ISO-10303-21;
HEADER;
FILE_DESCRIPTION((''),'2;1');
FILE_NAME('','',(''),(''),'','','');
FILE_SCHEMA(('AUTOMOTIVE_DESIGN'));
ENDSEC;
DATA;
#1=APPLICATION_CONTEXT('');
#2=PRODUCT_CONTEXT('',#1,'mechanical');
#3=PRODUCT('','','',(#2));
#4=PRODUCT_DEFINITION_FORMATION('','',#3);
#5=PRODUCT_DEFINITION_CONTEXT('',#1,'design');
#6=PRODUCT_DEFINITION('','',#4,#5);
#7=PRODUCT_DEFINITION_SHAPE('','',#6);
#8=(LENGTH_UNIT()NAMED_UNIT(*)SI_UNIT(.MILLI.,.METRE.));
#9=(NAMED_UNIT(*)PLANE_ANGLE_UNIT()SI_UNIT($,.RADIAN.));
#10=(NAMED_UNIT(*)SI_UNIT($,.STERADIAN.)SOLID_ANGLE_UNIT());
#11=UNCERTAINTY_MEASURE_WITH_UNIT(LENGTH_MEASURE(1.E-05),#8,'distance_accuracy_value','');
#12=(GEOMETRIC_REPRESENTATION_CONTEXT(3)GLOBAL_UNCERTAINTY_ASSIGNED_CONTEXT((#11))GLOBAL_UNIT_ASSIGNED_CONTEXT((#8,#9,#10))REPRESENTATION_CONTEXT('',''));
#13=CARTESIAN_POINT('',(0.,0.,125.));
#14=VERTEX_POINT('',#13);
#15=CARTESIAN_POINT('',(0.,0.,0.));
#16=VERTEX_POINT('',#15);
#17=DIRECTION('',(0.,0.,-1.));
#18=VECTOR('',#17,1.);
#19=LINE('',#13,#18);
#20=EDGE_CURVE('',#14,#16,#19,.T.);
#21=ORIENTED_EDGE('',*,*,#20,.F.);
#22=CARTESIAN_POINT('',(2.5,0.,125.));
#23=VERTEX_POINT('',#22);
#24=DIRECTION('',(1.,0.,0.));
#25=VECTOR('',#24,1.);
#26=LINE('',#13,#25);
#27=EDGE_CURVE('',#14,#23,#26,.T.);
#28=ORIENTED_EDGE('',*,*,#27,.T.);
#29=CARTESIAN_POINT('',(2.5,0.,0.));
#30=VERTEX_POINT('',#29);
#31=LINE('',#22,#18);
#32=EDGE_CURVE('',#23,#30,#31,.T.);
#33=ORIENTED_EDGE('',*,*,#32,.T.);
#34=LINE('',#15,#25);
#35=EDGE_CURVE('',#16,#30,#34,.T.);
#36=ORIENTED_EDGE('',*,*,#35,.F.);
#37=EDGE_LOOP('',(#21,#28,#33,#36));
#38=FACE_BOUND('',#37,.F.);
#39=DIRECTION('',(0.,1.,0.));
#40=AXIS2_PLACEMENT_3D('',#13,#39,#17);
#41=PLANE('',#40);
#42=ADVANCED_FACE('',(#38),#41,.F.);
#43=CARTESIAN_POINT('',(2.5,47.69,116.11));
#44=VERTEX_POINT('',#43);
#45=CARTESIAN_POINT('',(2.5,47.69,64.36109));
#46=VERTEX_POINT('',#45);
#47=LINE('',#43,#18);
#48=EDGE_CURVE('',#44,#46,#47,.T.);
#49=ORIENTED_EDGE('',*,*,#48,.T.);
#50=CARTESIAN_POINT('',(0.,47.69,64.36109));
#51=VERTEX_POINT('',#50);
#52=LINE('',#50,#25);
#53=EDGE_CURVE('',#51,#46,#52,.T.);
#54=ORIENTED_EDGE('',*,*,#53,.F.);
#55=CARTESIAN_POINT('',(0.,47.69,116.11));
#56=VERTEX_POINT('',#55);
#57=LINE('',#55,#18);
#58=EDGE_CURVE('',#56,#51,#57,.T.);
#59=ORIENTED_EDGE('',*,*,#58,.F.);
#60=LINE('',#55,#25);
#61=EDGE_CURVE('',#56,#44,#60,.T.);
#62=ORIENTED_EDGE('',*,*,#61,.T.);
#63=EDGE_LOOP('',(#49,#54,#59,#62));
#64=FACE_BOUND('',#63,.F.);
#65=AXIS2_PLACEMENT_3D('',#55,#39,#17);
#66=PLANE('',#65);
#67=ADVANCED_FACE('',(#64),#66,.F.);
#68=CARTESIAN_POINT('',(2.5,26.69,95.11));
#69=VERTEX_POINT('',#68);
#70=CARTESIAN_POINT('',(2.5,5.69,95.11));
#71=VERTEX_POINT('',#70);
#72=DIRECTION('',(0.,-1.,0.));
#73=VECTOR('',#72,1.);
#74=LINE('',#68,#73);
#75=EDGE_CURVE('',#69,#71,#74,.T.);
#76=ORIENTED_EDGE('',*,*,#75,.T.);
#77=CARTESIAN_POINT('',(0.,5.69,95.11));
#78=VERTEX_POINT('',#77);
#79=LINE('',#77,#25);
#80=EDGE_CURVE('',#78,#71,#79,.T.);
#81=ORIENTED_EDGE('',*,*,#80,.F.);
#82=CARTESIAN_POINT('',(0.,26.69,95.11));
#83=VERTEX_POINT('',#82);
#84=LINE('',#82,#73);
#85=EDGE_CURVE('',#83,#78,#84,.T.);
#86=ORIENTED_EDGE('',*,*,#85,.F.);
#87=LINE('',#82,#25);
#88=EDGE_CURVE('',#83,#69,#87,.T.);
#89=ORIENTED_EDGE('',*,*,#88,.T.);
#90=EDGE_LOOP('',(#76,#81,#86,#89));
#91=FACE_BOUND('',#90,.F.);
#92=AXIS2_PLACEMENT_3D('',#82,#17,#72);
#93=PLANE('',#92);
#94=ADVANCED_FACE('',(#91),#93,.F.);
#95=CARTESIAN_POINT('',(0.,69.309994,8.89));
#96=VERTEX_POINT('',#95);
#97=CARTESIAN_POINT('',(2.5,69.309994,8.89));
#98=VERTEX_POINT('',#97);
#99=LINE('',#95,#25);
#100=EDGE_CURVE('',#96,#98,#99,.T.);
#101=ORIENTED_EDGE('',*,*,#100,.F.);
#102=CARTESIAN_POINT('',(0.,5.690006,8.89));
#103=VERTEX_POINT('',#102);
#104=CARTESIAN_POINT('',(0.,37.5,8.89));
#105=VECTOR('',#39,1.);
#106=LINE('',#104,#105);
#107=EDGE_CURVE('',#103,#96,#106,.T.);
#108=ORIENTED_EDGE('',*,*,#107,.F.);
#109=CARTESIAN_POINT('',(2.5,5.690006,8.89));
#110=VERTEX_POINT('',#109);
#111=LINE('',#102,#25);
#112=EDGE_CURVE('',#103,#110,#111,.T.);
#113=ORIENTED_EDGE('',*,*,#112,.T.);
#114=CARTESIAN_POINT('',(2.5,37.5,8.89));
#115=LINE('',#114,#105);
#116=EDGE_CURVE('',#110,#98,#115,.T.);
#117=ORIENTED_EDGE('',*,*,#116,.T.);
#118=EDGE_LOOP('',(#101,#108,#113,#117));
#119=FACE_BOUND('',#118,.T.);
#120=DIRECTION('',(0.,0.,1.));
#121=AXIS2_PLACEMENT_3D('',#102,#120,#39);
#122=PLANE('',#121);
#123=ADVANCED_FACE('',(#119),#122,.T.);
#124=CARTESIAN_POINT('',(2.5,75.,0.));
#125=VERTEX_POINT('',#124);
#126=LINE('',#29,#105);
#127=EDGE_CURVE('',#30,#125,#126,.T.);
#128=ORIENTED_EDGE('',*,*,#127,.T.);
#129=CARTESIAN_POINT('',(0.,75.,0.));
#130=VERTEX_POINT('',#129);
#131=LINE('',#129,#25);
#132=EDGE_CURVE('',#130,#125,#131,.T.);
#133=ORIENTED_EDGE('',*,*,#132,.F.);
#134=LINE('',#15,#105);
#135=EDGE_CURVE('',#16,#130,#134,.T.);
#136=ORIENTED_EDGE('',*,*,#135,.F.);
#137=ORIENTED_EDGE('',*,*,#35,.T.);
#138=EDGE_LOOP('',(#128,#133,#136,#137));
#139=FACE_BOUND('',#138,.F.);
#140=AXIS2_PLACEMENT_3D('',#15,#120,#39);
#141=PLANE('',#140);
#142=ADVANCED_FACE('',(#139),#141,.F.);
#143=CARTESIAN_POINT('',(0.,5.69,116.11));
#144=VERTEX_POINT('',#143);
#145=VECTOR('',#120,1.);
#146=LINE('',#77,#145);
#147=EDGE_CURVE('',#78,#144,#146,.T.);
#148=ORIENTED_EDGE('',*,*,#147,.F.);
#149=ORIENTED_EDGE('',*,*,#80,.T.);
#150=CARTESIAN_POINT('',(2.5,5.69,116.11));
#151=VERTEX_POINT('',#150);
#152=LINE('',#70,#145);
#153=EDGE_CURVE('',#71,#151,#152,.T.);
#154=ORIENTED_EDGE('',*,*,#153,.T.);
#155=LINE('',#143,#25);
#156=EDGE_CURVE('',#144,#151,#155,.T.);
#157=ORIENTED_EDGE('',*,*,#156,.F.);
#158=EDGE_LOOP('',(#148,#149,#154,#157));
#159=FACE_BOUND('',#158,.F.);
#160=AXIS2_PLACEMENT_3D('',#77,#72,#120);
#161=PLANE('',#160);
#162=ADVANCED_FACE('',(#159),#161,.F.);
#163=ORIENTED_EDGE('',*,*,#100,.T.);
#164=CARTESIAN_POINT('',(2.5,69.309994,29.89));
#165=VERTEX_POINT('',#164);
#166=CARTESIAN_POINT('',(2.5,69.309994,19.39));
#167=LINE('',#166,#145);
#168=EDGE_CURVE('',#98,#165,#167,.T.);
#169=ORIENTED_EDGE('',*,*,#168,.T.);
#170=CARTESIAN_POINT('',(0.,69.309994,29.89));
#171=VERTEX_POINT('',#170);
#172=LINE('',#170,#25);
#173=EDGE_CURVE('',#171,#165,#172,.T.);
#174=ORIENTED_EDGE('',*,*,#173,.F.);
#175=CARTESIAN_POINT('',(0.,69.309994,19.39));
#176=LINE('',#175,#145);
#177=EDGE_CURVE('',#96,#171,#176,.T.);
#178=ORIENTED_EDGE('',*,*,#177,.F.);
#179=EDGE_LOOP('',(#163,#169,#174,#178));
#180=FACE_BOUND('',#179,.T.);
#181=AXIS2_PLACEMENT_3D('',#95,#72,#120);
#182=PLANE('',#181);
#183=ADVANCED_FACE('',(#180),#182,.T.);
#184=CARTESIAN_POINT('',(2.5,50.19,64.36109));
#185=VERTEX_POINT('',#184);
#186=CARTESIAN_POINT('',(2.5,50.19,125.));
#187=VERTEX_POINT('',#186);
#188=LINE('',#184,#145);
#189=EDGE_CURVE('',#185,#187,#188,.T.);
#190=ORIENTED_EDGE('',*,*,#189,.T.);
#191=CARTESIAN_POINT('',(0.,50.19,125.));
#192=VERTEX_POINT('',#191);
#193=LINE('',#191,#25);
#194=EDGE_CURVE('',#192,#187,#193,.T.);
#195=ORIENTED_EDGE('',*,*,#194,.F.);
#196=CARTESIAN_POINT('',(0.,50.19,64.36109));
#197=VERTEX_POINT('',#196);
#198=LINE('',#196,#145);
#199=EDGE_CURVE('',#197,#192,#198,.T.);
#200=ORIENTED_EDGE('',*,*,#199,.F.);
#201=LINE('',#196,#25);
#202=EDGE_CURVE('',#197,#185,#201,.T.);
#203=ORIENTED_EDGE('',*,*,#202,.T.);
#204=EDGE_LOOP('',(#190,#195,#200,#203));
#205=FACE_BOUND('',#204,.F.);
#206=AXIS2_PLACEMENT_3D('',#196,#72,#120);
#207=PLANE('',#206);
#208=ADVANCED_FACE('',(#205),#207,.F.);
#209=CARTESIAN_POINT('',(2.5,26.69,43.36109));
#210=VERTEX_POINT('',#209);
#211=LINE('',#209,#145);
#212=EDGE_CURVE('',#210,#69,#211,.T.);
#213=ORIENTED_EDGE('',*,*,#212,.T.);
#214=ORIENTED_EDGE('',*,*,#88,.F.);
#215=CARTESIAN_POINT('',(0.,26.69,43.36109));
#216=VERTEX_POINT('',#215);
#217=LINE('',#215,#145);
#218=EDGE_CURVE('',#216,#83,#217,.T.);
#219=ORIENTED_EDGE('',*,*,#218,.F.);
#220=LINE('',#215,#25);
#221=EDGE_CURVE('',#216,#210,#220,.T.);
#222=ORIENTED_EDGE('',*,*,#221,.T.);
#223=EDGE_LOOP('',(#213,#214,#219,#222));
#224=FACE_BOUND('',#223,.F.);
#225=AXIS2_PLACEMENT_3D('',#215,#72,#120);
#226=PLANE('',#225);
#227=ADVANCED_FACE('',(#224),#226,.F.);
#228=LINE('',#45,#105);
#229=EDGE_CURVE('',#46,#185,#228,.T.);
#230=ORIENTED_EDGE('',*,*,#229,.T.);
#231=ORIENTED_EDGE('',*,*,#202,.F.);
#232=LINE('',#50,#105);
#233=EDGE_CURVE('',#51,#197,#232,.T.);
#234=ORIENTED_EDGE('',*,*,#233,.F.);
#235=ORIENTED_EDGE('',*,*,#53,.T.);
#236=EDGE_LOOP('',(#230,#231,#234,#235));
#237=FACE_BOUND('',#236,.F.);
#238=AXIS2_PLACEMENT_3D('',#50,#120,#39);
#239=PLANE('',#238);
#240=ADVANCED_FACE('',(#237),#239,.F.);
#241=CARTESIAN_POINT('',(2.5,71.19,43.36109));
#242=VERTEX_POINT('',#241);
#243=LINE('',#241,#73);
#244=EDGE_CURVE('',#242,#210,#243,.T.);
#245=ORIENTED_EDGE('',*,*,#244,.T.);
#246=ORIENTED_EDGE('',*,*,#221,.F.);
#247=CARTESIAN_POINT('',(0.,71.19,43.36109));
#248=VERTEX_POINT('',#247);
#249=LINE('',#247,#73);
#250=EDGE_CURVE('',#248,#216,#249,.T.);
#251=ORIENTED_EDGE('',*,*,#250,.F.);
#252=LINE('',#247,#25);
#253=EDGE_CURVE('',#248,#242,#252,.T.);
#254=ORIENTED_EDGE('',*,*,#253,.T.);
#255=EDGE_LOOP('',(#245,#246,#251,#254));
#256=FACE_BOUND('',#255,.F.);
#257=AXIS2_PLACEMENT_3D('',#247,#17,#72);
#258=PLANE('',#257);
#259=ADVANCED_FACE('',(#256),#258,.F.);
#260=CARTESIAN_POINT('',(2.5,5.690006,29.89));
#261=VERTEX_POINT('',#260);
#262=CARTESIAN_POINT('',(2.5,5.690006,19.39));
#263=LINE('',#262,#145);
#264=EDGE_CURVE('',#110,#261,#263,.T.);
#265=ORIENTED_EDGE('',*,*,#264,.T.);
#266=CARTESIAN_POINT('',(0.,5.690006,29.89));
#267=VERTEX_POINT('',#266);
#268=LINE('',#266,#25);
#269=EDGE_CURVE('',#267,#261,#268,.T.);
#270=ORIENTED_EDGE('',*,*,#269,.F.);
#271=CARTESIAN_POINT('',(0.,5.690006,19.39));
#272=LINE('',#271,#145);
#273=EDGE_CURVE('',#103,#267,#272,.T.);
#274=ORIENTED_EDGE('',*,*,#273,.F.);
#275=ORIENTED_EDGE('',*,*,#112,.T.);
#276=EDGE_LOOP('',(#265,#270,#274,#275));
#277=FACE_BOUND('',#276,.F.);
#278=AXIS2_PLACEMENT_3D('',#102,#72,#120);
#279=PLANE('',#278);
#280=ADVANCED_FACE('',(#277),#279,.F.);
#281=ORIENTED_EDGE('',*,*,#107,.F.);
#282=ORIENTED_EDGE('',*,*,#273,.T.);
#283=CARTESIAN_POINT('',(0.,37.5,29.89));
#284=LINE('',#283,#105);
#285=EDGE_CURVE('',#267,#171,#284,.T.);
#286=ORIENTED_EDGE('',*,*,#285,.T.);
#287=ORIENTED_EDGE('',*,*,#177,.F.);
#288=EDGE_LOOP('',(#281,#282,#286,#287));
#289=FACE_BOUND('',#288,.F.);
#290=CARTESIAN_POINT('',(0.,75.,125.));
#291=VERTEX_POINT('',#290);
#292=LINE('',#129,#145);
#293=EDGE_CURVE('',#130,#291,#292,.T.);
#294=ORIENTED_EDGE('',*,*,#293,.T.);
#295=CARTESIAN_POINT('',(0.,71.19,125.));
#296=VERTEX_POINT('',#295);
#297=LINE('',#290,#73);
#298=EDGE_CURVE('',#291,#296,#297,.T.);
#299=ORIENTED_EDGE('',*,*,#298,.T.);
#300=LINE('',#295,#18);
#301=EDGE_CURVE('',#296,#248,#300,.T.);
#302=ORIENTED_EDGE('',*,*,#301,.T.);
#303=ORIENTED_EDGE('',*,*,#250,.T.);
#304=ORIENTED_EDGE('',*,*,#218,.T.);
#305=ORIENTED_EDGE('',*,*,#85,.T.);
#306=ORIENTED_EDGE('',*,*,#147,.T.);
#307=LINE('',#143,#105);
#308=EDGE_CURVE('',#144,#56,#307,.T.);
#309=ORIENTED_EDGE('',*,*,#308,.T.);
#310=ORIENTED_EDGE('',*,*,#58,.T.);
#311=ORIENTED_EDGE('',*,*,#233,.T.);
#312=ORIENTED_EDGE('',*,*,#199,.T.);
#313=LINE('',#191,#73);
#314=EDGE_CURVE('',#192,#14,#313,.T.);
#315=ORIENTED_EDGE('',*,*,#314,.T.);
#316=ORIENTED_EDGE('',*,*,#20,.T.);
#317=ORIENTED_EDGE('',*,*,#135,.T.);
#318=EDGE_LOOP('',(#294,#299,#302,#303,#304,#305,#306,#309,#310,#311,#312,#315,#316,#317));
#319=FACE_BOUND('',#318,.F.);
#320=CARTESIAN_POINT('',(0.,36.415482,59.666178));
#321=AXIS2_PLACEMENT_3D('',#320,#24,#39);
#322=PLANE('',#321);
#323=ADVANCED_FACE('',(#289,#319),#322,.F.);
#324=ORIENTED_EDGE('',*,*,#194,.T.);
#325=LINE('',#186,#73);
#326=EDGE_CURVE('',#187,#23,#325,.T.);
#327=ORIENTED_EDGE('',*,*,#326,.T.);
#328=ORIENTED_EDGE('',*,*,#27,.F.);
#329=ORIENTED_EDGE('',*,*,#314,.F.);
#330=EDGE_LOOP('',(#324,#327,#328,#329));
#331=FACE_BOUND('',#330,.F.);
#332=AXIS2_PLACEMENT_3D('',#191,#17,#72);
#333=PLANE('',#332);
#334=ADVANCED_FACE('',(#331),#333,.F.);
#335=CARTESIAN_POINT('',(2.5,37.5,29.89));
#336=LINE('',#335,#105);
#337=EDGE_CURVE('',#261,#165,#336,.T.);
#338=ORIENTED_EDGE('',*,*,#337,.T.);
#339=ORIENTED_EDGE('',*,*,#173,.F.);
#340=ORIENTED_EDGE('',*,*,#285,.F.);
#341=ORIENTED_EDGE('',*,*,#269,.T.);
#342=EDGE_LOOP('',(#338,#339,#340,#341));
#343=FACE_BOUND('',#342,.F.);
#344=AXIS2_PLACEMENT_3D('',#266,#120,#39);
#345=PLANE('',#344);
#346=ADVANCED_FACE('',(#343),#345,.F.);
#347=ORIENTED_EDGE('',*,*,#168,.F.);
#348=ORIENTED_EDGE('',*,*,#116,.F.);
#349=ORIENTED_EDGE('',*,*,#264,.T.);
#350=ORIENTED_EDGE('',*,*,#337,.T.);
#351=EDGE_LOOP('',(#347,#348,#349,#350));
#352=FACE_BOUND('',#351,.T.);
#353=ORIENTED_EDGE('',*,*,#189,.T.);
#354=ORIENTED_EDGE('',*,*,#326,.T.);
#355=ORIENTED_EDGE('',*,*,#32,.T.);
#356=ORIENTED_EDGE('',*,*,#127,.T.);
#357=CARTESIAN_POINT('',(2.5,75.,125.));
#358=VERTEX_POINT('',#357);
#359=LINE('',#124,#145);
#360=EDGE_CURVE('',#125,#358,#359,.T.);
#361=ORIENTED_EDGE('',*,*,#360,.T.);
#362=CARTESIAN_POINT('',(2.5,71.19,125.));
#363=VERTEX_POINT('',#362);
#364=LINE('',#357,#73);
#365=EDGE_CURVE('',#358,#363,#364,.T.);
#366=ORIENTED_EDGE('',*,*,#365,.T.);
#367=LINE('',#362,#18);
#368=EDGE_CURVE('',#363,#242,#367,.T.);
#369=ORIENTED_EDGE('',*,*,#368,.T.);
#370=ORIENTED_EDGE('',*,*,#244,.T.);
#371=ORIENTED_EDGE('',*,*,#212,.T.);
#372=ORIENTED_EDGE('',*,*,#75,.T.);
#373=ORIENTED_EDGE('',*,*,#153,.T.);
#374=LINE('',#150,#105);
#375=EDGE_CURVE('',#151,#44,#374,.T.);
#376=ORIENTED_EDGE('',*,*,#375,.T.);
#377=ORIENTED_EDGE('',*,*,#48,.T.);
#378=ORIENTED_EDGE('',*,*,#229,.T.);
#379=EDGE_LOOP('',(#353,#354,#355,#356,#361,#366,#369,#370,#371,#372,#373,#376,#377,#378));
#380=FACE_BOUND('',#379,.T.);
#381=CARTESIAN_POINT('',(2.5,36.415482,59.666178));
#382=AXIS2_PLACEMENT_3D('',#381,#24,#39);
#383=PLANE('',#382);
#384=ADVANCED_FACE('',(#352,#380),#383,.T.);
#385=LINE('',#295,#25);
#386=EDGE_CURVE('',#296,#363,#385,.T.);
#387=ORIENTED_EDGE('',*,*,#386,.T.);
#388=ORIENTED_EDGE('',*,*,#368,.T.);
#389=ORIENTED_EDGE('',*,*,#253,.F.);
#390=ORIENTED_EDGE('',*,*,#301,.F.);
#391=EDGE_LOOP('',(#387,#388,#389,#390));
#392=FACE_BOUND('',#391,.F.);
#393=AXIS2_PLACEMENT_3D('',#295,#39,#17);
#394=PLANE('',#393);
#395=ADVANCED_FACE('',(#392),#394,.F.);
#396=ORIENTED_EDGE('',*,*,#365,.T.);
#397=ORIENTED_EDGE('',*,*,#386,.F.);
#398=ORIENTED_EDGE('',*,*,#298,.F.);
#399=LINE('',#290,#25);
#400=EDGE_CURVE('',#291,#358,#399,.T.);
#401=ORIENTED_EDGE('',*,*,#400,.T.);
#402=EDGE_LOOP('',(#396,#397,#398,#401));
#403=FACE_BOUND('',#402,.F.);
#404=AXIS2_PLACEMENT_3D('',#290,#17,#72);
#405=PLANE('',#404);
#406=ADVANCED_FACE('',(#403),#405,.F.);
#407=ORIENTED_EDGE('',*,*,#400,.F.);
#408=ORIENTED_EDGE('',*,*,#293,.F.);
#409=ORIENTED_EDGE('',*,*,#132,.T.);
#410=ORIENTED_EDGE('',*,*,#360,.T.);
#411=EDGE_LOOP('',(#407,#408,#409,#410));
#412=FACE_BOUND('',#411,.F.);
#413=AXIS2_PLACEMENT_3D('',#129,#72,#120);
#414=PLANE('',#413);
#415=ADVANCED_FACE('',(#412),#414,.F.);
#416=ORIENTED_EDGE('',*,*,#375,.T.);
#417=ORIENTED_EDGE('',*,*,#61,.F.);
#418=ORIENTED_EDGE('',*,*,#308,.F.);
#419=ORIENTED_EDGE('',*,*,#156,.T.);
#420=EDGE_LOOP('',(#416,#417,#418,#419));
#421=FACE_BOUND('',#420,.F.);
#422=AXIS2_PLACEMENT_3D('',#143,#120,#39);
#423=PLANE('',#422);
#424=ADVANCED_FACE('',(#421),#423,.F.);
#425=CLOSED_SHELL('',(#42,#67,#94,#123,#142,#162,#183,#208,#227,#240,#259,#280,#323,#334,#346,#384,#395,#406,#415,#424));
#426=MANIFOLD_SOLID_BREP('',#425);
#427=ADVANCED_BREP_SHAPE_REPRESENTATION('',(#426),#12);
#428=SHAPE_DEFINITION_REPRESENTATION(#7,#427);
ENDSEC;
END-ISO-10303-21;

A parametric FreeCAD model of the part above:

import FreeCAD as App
import Part
import Sketcher
Q = App.Units.Quantity

doc = App.newDocument("Part")
body = doc.addObject("PartDesign::Body", "Body")

sketch1 = body.newObject("Sketcher::SketchObject", "Sketch")
sketch1.AttachmentSupport = (doc.getObject("YZ_Plane"), [""])
sketch1.MapMode = "FlatFace"
sketch1.addGeometry([
    Part.LineSegment(App.Vector(0, 125, 0), App.Vector(0, 0, 0)),
    Part.LineSegment(App.Vector(0, 0, 0), App.Vector(75, 0, 0)),
    Part.LineSegment(App.Vector(75, 0, 0), App.Vector(75, 125, 0)),
    Part.LineSegment(App.Vector(75, 125, 0), App.Vector(71.19, 125, 0)),
    Part.LineSegment(App.Vector(71.19, 125, 0), App.Vector(71.19, 43.36109, 0)),
    Part.LineSegment(App.Vector(71.19, 43.36109, 0), App.Vector(26.69, 43.36109, 0)),
    Part.LineSegment(App.Vector(26.69, 43.36109, 0), App.Vector(26.69, 95.11, 0)),
    Part.LineSegment(App.Vector(26.69, 95.11, 0), App.Vector(5.69, 95.11, 0)),
    Part.LineSegment(App.Vector(5.69, 95.11, 0), App.Vector(5.69, 116.11, 0)),
    Part.LineSegment(App.Vector(5.69, 116.11, 0), App.Vector(47.69, 116.11, 0)),
    Part.LineSegment(App.Vector(47.69, 116.11, 0), App.Vector(47.69, 64.36109, 0)),
    Part.LineSegment(App.Vector(47.69, 64.36109, 0), App.Vector(50.19, 64.36109, 0)),
    Part.LineSegment(App.Vector(50.19, 64.36109, 0), App.Vector(50.19, 125, 0)),
    Part.LineSegment(App.Vector(50.19, 125, 0), App.Vector(0, 125, 0)),
    Part.LineSegment(App.Vector(69.309994, 8.89, 0), App.Vector(5.690006, 8.89, 0)),
    Part.LineSegment(App.Vector(5.690006, 8.89, 0), App.Vector(5.690006, 29.89, 0)),
    Part.LineSegment(App.Vector(5.690006, 29.89, 0), App.Vector(69.309994, 29.89, 0)),
    Part.LineSegment(App.Vector(69.309994, 29.89, 0), App.Vector(69.309994, 8.89, 0)),
], False)
sketch1.addConstraint([
    Sketcher.Constraint("Coincident", 0, 2, 1, 1),
    Sketcher.Constraint("Coincident", 1, 2, 2, 1),
    Sketcher.Constraint("Coincident", 2, 2, 3, 1),
    Sketcher.Constraint("Coincident", 3, 2, 4, 1),
    Sketcher.Constraint("Coincident", 4, 2, 5, 1),
    Sketcher.Constraint("Coincident", 5, 2, 6, 1),
    Sketcher.Constraint("Coincident", 6, 2, 7, 1),
    Sketcher.Constraint("Coincident", 7, 2, 8, 1),
    Sketcher.Constraint("Coincident", 8, 2, 9, 1),
    Sketcher.Constraint("Coincident", 9, 2, 10, 1),
    Sketcher.Constraint("Coincident", 10, 2, 11, 1),
    Sketcher.Constraint("Coincident", 11, 2, 12, 1),
    Sketcher.Constraint("Coincident", 12, 2, 13, 1),
    Sketcher.Constraint("Coincident", 13, 2, 0, 1),
    Sketcher.Constraint("Coincident", 14, 2, 15, 1),
    Sketcher.Constraint("Coincident", 15, 2, 16, 1),
    Sketcher.Constraint("Coincident", 16, 2, 17, 1),
    Sketcher.Constraint("Coincident", 17, 2, 14, 1),
    Sketcher.Constraint("Vertical", 0),
    Sketcher.Constraint("Horizontal", 1),
    Sketcher.Constraint("Vertical", 2),
    Sketcher.Constraint("Horizontal", 3),
    Sketcher.Constraint("Vertical", 4),
    Sketcher.Constraint("Horizontal", 5),
    Sketcher.Constraint("Vertical", 6),
    Sketcher.Constraint("Horizontal", 7),
    Sketcher.Constraint("Vertical", 8),
    Sketcher.Constraint("Horizontal", 9),
    Sketcher.Constraint("Vertical", 10),
    Sketcher.Constraint("Horizontal", 11),
    Sketcher.Constraint("Vertical", 12),
    Sketcher.Constraint("Horizontal", 13),
    Sketcher.Constraint("Horizontal", 14),
    Sketcher.Constraint("Vertical", 15),
    Sketcher.Constraint("Horizontal", 16),
    Sketcher.Constraint("Vertical", 17),
    Sketcher.Constraint("Coincident", 0, 2, -1, 1),
    Sketcher.Constraint("Horizontal", 3, 2, 12, 2),
    Sketcher.Constraint("Equal", 7, 8),
    Sketcher.Constraint("Equal", 6, 10),
    Sketcher.Constraint("Equal", 8, 15),
    Sketcher.Constraint("DistanceX", 1, 1, 1, 2, Q("75 mm")),
    Sketcher.Constraint("DistanceX", 7, 2, 7, 1, Q("21 mm")),
    Sketcher.Constraint("DistanceX", 9, 1, 9, 2, Q("42 mm")),
    Sketcher.Constraint("DistanceY", 0, 2, 0, 1, Q("125 mm")),
    Sketcher.Constraint("DistanceX", 5, 2, 5, 1, Q("44.5 mm")),
    Sketcher.Constraint("DistanceX", 11, 1, 11, 2, Q("2.5 mm")),
    Sketcher.Constraint("DistanceX", 3, 2, 3, 1, Q("3.81 mm")),
    Sketcher.Constraint("DistanceY", -1, 1, 6, 2, Q("95.11 mm")),
    Sketcher.Constraint("DistanceY", -1, 1, 14, 2, Q("8.89 mm")),
    Sketcher.Constraint("DistanceX", 14, 2, 14, 1, Q("63.619988 mm")),
    Sketcher.Constraint("DistanceY", 4, 2, 4, 1, Q("81.63891 mm")),
    Sketcher.Constraint("DistanceX", -1, 1, 14, 2, Q("5.690006 mm")),
])
pad1 = body.newObject("PartDesign::Pad", "Pad")
pad1.Profile = sketch1
pad1.Length = 2.5

doc.recompute()
